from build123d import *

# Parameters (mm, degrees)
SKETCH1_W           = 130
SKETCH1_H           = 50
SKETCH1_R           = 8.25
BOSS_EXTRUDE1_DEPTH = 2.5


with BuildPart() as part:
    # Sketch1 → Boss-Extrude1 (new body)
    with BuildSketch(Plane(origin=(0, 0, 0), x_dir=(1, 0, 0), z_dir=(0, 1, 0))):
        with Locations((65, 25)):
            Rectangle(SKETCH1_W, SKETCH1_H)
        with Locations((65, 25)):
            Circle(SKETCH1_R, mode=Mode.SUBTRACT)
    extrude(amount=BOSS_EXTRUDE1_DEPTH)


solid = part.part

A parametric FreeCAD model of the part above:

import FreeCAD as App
import Part
import Sketcher
from FreeCAD import Vector


def add_polygon(sketch, points):
    """Adds a closed chain of lines whose ends are joined by coincident constraints."""
    first, n = sketch.GeometryCount, len(points)
    for a, b in zip(points, points[1:] + points[:1]):
        sketch.addGeometry(Part.LineSegment(App.Vector(*a, 0), App.Vector(*b, 0)), False)
    for i in range(n):
        sketch.addConstraint(Sketcher.Constraint("Coincident", first + i, 2, first + (i + 1) % n, 1))

doc = App.newDocument("Part")
body = doc.addObject("PartDesign::Body", "Body")

# Sketch on XZ plane
sketch1 = body.newObject("Sketcher::SketchObject", "Sketch")
sketch1.AttachmentSupport = (doc.getObject("XZ_Plane"), [""])
sketch1.MapMode = "FlatFace"
add_polygon(sketch1, [(0, -50), (0, 0), (130, 0), (130, -50)])  # lines 0-3
sketch1.addGeometry(Part.Circle(Vector(65, -25, 0), Vector(0, 0, 1), 8.25), False)  # 4
sketch1.addConstraint([
    Sketcher.Constraint("Vertical", 0),
    Sketcher.Constraint("Horizontal", 1),
    Sketcher.Constraint("Vertical", 2),
    Sketcher.Constraint("Horizontal", 3),
    Sketcher.Constraint("Coincident", 0, 2, -1, 1),
    Sketcher.Constraint("Diameter", 4, 16.5),
    Sketcher.Constraint("DistanceX", 1, 1, 1, 2, 130.0),
    Sketcher.Constraint("DistanceY", 0, 1, 0, 2, 50.0),
    Sketcher.Constraint("DistanceX", -1, 1, 4, 3, 65.0),
    Sketcher.Constraint("DistanceY", 4, 3, -1, 1, 25.0),
])
pad1 = body.newObject("PartDesign::Pad", "Pad")
pad1.Profile = sketch1
pad1.Length = 2.5
pad1.Reversed = True

doc.recompute()
